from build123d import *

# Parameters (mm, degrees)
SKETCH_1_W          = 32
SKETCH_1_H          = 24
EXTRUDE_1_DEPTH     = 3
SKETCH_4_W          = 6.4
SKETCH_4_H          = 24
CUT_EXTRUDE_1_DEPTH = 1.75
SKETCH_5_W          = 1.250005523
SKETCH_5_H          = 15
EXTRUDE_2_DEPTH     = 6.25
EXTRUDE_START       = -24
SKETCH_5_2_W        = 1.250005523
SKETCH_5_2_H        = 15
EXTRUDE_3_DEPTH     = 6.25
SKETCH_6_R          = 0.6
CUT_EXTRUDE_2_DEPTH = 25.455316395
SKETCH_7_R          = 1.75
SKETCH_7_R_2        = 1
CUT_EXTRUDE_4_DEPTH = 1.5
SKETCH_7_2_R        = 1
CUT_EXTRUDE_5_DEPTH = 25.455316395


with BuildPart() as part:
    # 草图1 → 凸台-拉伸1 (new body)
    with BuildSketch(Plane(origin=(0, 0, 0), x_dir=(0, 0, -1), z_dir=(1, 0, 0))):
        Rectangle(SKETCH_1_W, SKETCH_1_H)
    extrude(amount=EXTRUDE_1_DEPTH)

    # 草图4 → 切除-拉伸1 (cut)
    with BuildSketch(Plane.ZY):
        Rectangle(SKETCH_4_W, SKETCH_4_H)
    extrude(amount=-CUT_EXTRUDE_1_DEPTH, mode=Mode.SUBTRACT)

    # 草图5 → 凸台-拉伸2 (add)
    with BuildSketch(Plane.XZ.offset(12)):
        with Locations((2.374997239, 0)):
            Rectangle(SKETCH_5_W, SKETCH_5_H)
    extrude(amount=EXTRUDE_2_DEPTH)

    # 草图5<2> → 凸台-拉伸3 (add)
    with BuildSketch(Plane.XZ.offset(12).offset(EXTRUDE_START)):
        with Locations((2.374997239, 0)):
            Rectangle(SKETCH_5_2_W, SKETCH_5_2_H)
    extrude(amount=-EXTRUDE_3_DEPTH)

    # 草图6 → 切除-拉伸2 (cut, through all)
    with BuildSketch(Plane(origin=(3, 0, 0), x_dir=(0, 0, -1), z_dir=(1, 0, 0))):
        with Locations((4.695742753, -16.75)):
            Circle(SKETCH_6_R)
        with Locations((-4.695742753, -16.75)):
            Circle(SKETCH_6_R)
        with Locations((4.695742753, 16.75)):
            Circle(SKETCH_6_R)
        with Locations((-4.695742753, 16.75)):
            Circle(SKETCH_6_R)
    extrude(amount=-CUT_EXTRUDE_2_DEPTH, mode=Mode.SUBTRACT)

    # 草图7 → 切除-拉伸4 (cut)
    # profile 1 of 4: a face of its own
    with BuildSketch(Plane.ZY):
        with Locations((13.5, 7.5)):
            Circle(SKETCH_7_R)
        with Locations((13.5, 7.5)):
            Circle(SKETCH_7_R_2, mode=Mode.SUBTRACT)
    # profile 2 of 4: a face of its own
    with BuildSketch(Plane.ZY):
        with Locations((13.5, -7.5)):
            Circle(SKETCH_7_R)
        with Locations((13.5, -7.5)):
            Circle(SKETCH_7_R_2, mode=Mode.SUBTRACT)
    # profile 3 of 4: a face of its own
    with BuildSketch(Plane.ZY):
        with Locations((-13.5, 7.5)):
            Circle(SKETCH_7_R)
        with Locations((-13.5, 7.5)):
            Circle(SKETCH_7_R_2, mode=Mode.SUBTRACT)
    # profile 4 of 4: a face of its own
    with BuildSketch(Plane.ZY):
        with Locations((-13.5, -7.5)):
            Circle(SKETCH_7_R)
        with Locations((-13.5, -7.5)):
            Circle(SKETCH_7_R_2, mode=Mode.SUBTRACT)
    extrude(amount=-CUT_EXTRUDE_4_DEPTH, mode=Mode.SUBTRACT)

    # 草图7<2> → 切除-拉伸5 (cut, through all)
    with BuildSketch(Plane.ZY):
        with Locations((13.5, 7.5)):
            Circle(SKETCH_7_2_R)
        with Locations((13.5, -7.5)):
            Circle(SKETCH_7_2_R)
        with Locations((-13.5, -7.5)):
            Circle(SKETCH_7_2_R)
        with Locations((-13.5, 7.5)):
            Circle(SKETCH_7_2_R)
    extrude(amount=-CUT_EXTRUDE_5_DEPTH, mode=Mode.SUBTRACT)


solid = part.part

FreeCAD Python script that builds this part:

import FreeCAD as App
import Part
import Sketcher

V = App.Vector
Q = App.Units.Quantity

doc = App.newDocument("Part")
params = doc.addObject("Spreadsheet::Sheet", "Params")
for row, (alias, value) in enumerate([
    ("sketch1_width", "24 mm"),
    ("sketch1_height", "32 mm"),
    ("pad1_length", "3 mm"),
    ("sketch2_width", "24 mm"),
    ("sketch2_height", "6.4 mm"),
    ("pocket1_length", "1.75 mm"),
    ("sketch3_height", "15 mm"),
    ("pad2_length", "6.25 mm"),
    ("sketch4_height", "15 mm"),
    ("pad3_length", "6.25 mm"),
    ("sketch5_diameter", "1.2 mm"),
    ("sketch6_diameter", "2 mm"),
    ("sketch6_diameter2", "3.5 mm"),
    ("pocket3_length", "1.5 mm"),
    ("sketch7_diameter", "2 mm"),
], start=1):
    params.set(f"A{row}", alias)
    params.set(f"B{row}", "=" + value)
    params.setAlias(f"B{row}", alias)

body = doc.addObject("PartDesign::Body", "Body")

sketch1 = body.newObject("Sketcher::SketchObject", "Sketch")
sketch1.AttachmentSupport = (doc.getObject("YZ_Plane"), [""])
sketch1.MapMode = "FlatFace"
sketch1.addGeometry(Part.LineSegment(V(12, 16, 0), V(-12, 16, 0)), False)
sketch1.addGeometry(Part.LineSegment(V(-12, 16, 0), V(-12, -16, 0)), False)
sketch1.addGeometry(Part.LineSegment(V(-12, -16, 0), V(12, -16, 0)), False)
sketch1.addGeometry(Part.LineSegment(V(12, -16, 0), V(12, 16, 0)), False)
sketch1.addConstraint(Sketcher.Constraint("Coincident", 0, 2, 1, 1))
sketch1.addConstraint(Sketcher.Constraint("Coincident", 1, 2, 2, 1))
sketch1.addConstraint(Sketcher.Constraint("Coincident", 2, 2, 3, 1))
sketch1.addConstraint(Sketcher.Constraint("Coincident", 3, 2, 0, 1))
sketch1.addConstraint(Sketcher.Constraint("Horizontal", 0))
sketch1.addConstraint(Sketcher.Constraint("Vertical", 1))
sketch1.addConstraint(Sketcher.Constraint("Horizontal", 2))
sketch1.addConstraint(Sketcher.Constraint("Vertical", 3))
sketch1.addConstraint(Sketcher.Constraint("Symmetric", 0, 2, 2, 2, -1, 1))
sketch1.addConstraint(Sketcher.Constraint("DistanceX", 0, 2, 0, 1, Q("24 mm")))
sketch1.addConstraint(Sketcher.Constraint("DistanceY", 1, 2, 1, 1, Q("32 mm")))
sketch1.setExpression("Constraints[9]", "Params.sketch1_width")
sketch1.setExpression("Constraints[10]", "Params.sketch1_height")
pad1 = body.newObject("PartDesign::Pad", "Pad")
pad1.Profile = sketch1
pad1.setExpression("Length", "Params.pad1_length")

sketch2 = body.newObject("Sketcher::SketchObject", "Sketch001")
sketch2.AttachmentSupport = (doc.getObject("YZ_Plane"), [""])
sketch2.MapMode = "FlatFace"
sketch2.addGeometry(Part.LineSegment(V(12, -3.2, 0), V(-12, -3.2, 0)), False)
sketch2.addGeometry(Part.LineSegment(V(-12, -3.2, 0), V(-12, 3.2, 0)), False)
sketch2.addGeometry(Part.LineSegment(V(-12, 3.2, 0), V(12, 3.2, 0)), False)
sketch2.addGeometry(Part.LineSegment(V(12, 3.2, 0), V(12, -3.2, 0)), False)
sketch2.addConstraint(Sketcher.Constraint("Coincident", 0, 2, 1, 1))
sketch2.addConstraint(Sketcher.Constraint("Coincident", 1, 2, 2, 1))
sketch2.addConstraint(Sketcher.Constraint("Coincident", 2, 2, 3, 1))
sketch2.addConstraint(Sketcher.Constraint("Coincident", 3, 2, 0, 1))
sketch2.addConstraint(Sketcher.Constraint("Horizontal", 0))
sketch2.addConstraint(Sketcher.Constraint("Vertical", 1))
sketch2.addConstraint(Sketcher.Constraint("Horizontal", 2))
sketch2.addConstraint(Sketcher.Constraint("Vertical", 3))
sketch2.addConstraint(Sketcher.Constraint("Symmetric", 0, 2, 2, 2, -1, 1))
sketch2.addConstraint(Sketcher.Constraint("DistanceX", 0, 2, 0, 1, Q("24 mm")))
sketch2.addConstraint(Sketcher.Constraint("DistanceY", 1, 1, 1, 2, Q("6.4 mm")))
sketch2.setExpression("Constraints[9]", "Params.sketch2_width")
sketch2.setExpression("Constraints[10]", "Params.sketch2_height")
pocket1 = body.newObject("PartDesign::Pocket", "Pocket")
pocket1.Profile = sketch2
pocket1.setExpression("Length", "Params.pocket1_length")
pocket1.Reversed = True

sketch3 = body.newObject("Sketcher::SketchObject", "Sketch002")
sketch3.AttachmentSupport = (doc.getObject("XZ_Plane"), [""])
sketch3.MapMode = "FlatFace"
sketch3.AttachmentOffset = App.Placement(V(0, 0, 12), App.Rotation())
sketch3.addGeometry(Part.LineSegment(V(1.749994, 7.5, 0), V(1.749994, -7.5, 0)), False)
sketch3.addGeometry(Part.LineSegment(V(1.749994, -7.5, 0), V(3, -7.5, 0)), False)
sketch3.addGeometry(Part.LineSegment(V(3, -7.5, 0), V(3, 7.5, 0)), False)
sketch3.addGeometry(Part.LineSegment(V(3, 7.5, 0), V(1.749994, 7.5, 0)), False)
sketch3.addConstraint(Sketcher.Constraint("Coincident", 0, 2, 1, 1))
sketch3.addConstraint(Sketcher.Constraint("Coincident", 1, 2, 2, 1))
sketch3.addConstraint(Sketcher.Constraint("Coincident", 2, 2, 3, 1))
sketch3.addConstraint(Sketcher.Constraint("Coincident", 3, 2, 0, 1))
sketch3.addConstraint(Sketcher.Constraint("Vertical", 0))
sketch3.addConstraint(Sketcher.Constraint("Horizontal", 1))
sketch3.addConstraint(Sketcher.Constraint("Vertical", 2))
sketch3.addConstraint(Sketcher.Constraint("Horizontal", 3))
sketch3.addConstraint(Sketcher.Constraint("DistanceY", 0, 2, 0, 1, Q("15 mm")))
sketch3.addConstraint(Sketcher.Constraint("DistanceX", -1, 1, 1, 2, Q("3 mm")))
sketch3.addConstraint(Sketcher.Constraint("DistanceY", 0, 2, -1, 1, Q("7.5 mm")))
sketch3.addConstraint(Sketcher.Constraint("DistanceX", 1, 1, 1, 2, Q("1.250006 mm")))
sketch3.setExpression("Constraints[8]", "Params.sketch3_height")
pad2 = body.newObject("PartDesign::Pad", "Pad001")
pad2.Profile = sketch3
pad2.setExpression("Length", "Params.pad2_length")

sketch4 = body.newObject("Sketcher::SketchObject", "Sketch003")
sketch4.AttachmentSupport = (doc.getObject("XZ_Plane"), [""])
sketch4.MapMode = "FlatFace"
sketch4.AttachmentOffset = App.Placement(V(0, 0, -12), App.Rotation())
sketch4.addGeometry(Part.LineSegment(V(1.749994, 7.5, 0), V(1.749994, -7.5, 0)), False)
sketch4.addGeometry(Part.LineSegment(V(1.749994, -7.5, 0), V(3, -7.5, 0)), False)
sketch4.addGeometry(Part.LineSegment(V(3, -7.5, 0), V(3, 7.5, 0)), False)
sketch4.addGeometry(Part.LineSegment(V(3, 7.5, 0), V(1.749994, 7.5, 0)), False)
sketch4.addConstraint(Sketcher.Constraint("Coincident", 0, 2, 1, 1))
sketch4.addConstraint(Sketcher.Constraint("Coincident", 1, 2, 2, 1))
sketch4.addConstraint(Sketcher.Constraint("Coincident", 2, 2, 3, 1))
sketch4.addConstraint(Sketcher.Constraint("Coincident", 3, 2, 0, 1))
sketch4.addConstraint(Sketcher.Constraint("Vertical", 0))
sketch4.addConstraint(Sketcher.Constraint("Horizontal", 1))
sketch4.addConstraint(Sketcher.Constraint("Vertical", 2))
sketch4.addConstraint(Sketcher.Constraint("Horizontal", 3))
sketch4.addConstraint(Sketcher.Constraint("DistanceY", 0, 2, 0, 1, Q("15 mm")))
sketch4.addConstraint(Sketcher.Constraint("DistanceX", -1, 1, 1, 2, Q("3 mm")))
sketch4.addConstraint(Sketcher.Constraint("DistanceY", 0, 2, -1, 1, Q("7.5 mm")))
sketch4.addConstraint(Sketcher.Constraint("DistanceX", 1, 1, 1, 2, Q("1.250006 mm")))
sketch4.setExpression("Constraints[8]", "Params.sketch4_height")
pad3 = body.newObject("PartDesign::Pad", "Pad002")
pad3.Profile = sketch4
pad3.setExpression("Length", "Params.pad3_length")
pad3.Reversed = True

sketch5 = body.newObject("Sketcher::SketchObject", "Sketch004")
sketch5.AttachmentSupport = (doc.getObject("YZ_Plane"), [""])
sketch5.MapMode = "FlatFace"
sketch5.AttachmentOffset = App.Placement(V(0, 0, 3), App.Rotation())
sketch5.addGeometry(Part.Circle(V(-16.75, -4.695743, 0), V(0, 0, 1), 0.6), False)
sketch5.addGeometry(Part.Circle(V(-16.75, 4.695743, 0), V(0, 0, 1), 0.6), False)
sketch5.addGeometry(Part.Circle(V(16.75, -4.695743, 0), V(0, 0, 1), 0.6), False)
sketch5.addGeometry(Part.Circle(V(16.75, 4.695743, 0), V(0, 0, 1), 0.6), False)
sketch5.addConstraint(Sketcher.Constraint("Equal", 0, 1))
sketch5.addConstraint(Sketcher.Constraint("Equal", 1, 2))
sketch5.addConstraint(Sketcher.Constraint("Equal", 2, 3))
sketch5.addConstraint(Sketcher.Constraint("Symmetric", 1, 3, 2, 3, -1, 1))
sketch5.addConstraint(Sketcher.Constraint("Symmetric", 0, 3, 3, 3, -1, 1))
sketch5.addConstraint(Sketcher.Constraint("Symmetric", 0, 3, 2, 3, -2))
sketch5.addConstraint(Sketcher.Constraint("Diameter", 0, Q("1.2 mm")))
sketch5.addConstraint(Sketcher.Constraint("DistanceX", 0, 3, 2, 3, Q("33.5 mm")))
sketch5.addConstraint(Sketcher.Constraint("DistanceY", 0, 3, -1, 1, Q("4.695743 mm")))
sketch5.setExpression("Constraints[6]", "Params.sketch5_diameter")
pocket2 = body.newObject("PartDesign::Pocket", "Pocket001")
pocket2.Profile = sketch5
pocket2.Type = "ThroughAll"

sketch6 = body.newObject("Sketcher::SketchObject", "Sketch005")
sketch6.AttachmentSupport = (doc.getObject("YZ_Plane"), [""])
sketch6.MapMode = "FlatFace"
sketch6.addGeometry(Part.Circle(V(7.5, 13.5, 0), V(0, 0, 1), 1.75), False)
sketch6.addGeometry(Part.Circle(V(7.5, 13.5, 0), V(0, 0, 1), 1), False)
sketch6.addGeometry(Part.Circle(V(-7.5, 13.5, 0), V(0, 0, 1), 1.75), False)
sketch6.addGeometry(Part.Circle(V(-7.5, 13.5, 0), V(0, 0, 1), 1), False)
sketch6.addGeometry(Part.Circle(V(7.5, -13.5, 0), V(0, 0, 1), 1.75), False)
sketch6.addGeometry(Part.Circle(V(7.5, -13.5, 0), V(0, 0, 1), 1), False)
sketch6.addGeometry(Part.Circle(V(-7.5, -13.5, 0), V(0, 0, 1), 1.75), False)
sketch6.addGeometry(Part.Circle(V(-7.5, -13.5, 0), V(0, 0, 1), 1), False)
sketch6.addConstraint(Sketcher.Constraint("Coincident", 1, 3, 0, 3))
sketch6.addConstraint(Sketcher.Constraint("Coincident", 3, 3, 2, 3))
sketch6.addConstraint(Sketcher.Constraint("Coincident", 5, 3, 4, 3))
sketch6.addConstraint(Sketcher.Constraint("Coincident", 7, 3, 6, 3))
sketch6.addConstraint(Sketcher.Constraint("Equal", 0, 2))
sketch6.addConstraint(Sketcher.Constraint("Equal", 1, 3))
sketch6.addConstraint(Sketcher.Constraint("Equal", 2, 4))
sketch6.addConstraint(Sketcher.Constraint("Equal", 3, 5))
sketch6.addConstraint(Sketcher.Constraint("Equal", 4, 6))
sketch6.addConstraint(Sketcher.Constraint("Equal", 5, 7))
sketch6.addConstraint(Sketcher.Constraint("Symmetric", 2, 3, 4, 3, -1, 1))
sketch6.addConstraint(Sketcher.Constraint("Symmetric", 0, 3, 6, 3, -1, 1))
sketch6.addConstraint(Sketcher.Constraint("Symmetric", 0, 3, 2, 3, -2))
sketch6.addConstraint(Sketcher.Constraint("Diameter", 1, Q("2 mm")))
sketch6.addConstraint(Sketcher.Constraint("Diameter", 0, Q("3.5 mm")))
sketch6.addConstraint(Sketcher.Constraint("DistanceX", 2, 3, 0, 3, Q("15 mm")))
sketch6.addConstraint(Sketcher.Constraint("DistanceY", 4, 3, 0, 3, Q("27 mm")))
sketch6.setExpression("Constraints[13]", "Params.sketch6_diameter")
sketch6.setExpression("Constraints[14]", "Params.sketch6_diameter2")
pocket3 = body.newObject("PartDesign::Pocket", "Pocket002")
pocket3.Profile = sketch6
pocket3.setExpression("Length", "Params.pocket3_length")
pocket3.Reversed = True

sketch7 = body.newObject("Sketcher::SketchObject", "Sketch006")
sketch7.AttachmentSupport = (doc.getObject("YZ_Plane"), [""])
sketch7.MapMode = "FlatFace"
sketch7.addGeometry(Part.Circle(V(7.5, 13.5, 0), V(0, 0, 1), 1), False)
sketch7.addGeometry(Part.Circle(V(-7.5, 13.5, 0), V(0, 0, 1), 1), False)
sketch7.addGeometry(Part.Circle(V(-7.5, -13.5, 0), V(0, 0, 1), 1), False)
sketch7.addGeometry(Part.Circle(V(7.5, -13.5, 0), V(0, 0, 1), 1), False)
sketch7.addConstraint(Sketcher.Constraint("Equal", 0, 1))
sketch7.addConstraint(Sketcher.Constraint("Equal", 1, 2))
sketch7.addConstraint(Sketcher.Constraint("Equal", 2, 3))
sketch7.addConstraint(Sketcher.Constraint("Symmetric", 0, 3, 2, 3, -1, 1))
sketch7.addConstraint(Sketcher.Constraint("Symmetric", 1, 3, 3, 3, -1, 1))
sketch7.addConstraint(Sketcher.Constraint("Symmetric", 0, 3, 1, 3, -2))
sketch7.addConstraint(Sketcher.Constraint("Diameter", 0, Q("2 mm")))
sketch7.addConstraint(Sketcher.Constraint("DistanceX", 1, 3, 0, 3, Q("15 mm")))
sketch7.addConstraint(Sketcher.Constraint("DistanceY", 2, 3, 1, 3, Q("27 mm")))
sketch7.setExpression("Constraints[6]", "Params.sketch7_diameter")
pocket4 = body.newObject("PartDesign::Pocket", "Pocket003")
pocket4.Profile = sketch7
pocket4.Type = "ThroughAll"
pocket4.Reversed = True

doc.recompute()
